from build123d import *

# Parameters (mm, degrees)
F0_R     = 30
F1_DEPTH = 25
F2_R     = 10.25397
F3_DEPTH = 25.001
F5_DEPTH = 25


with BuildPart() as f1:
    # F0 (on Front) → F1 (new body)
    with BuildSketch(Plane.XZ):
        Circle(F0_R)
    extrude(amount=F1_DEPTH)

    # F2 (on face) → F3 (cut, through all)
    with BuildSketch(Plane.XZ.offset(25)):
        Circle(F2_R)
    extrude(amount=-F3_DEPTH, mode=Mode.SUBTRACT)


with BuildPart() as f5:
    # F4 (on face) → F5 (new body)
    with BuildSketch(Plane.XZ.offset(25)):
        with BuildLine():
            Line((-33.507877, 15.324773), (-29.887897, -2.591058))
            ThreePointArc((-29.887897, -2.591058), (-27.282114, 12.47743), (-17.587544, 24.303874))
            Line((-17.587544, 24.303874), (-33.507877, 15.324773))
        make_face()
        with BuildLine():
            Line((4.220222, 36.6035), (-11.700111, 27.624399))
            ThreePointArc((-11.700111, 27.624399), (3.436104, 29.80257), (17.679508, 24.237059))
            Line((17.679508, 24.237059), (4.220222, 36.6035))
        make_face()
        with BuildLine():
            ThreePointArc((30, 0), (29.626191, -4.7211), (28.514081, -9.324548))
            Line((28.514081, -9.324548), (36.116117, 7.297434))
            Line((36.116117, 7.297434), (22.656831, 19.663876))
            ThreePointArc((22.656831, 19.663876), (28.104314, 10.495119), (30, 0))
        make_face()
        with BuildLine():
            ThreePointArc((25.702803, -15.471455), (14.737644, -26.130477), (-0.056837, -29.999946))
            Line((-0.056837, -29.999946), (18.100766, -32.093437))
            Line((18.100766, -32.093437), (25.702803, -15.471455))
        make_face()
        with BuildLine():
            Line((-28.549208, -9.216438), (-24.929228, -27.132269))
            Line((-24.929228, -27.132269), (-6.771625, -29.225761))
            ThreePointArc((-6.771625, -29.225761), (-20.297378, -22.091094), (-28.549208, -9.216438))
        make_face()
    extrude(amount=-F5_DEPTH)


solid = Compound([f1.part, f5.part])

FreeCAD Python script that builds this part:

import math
import FreeCAD as App
import Part
import Sketcher

doc = App.newDocument("Part")
body = doc.addObject("PartDesign::Body", "Body")

# Sketch on XZ plane
sketch1 = body.newObject("Sketcher::SketchObject", "Sketch")
sketch1.AttachmentSupport = (doc.getObject("XZ_Plane"), [""])
sketch1.MapMode = "FlatFace"
sketch1.addGeometry(Part.Circle(App.Vector(0, 0, 0), App.Vector(0, 0, 1), 30), False)
sketch1.addConstraint([
    Sketcher.Constraint("Coincident", 0, 3, -1, 1),
    Sketcher.Constraint("Diameter", 0, 60.0),
])
pad1 = body.newObject("PartDesign::Pad", "Pad")
pad1.Profile = sketch1
pad1.Length = 25

# Sketch on XZ plane
sketch2 = body.newObject("Sketcher::SketchObject", "Sketch001")
sketch2.AttachmentSupport = (doc.getObject("XZ_Plane"), [""])
sketch2.MapMode = "FlatFace"
sketch2.AttachmentOffset = App.Placement(App.Vector(0, 0, 25), App.Rotation())
sketch2.addGeometry(Part.Circle(App.Vector(0, 0, 0), App.Vector(0, 0, 1), 10.25397), False)
sketch2.addConstraint([
    Sketcher.Constraint("Coincident", 0, 3, -1, 1),
    Sketcher.Constraint("Diameter", 0, 20.50794),
])
pocket1 = body.newObject("PartDesign::Pocket", "Pocket")
pocket1.Profile = sketch2
pocket1.Type = "ThroughAll"
body2 = doc.addObject("PartDesign::Body", "Body001")
body2.AllowCompound = True

# Sketch on XZ plane
sketch3 = body2.newObject("Sketcher::SketchObject", "Sketch002")
sketch3.AttachmentSupport = (doc.getObject("XZ_Plane001"), [""])
sketch3.MapMode = "FlatFace"
sketch3.AttachmentOffset = App.Placement(App.Vector(0, 0, 25), App.Rotation())
sketch3.addGeometry([
    Part.LineSegment(App.Vector(-33.507877, 15.324773, 0), App.Vector(-29.887897, -2.591058, 0)),  # 0
    Part.ArcOfCircle(Part.Circle(App.Vector(-0.000002, 0.000002, 0), App.Vector(0, 0, 1), 29.999997), math.radians(125.891448), math.radians(184.954733)),  # 1
    Part.LineSegment(App.Vector(-17.587544, 24.303874, 0), App.Vector(-33.507877, 15.324773, 0)),  # 2
    Part.LineSegment(App.Vector(4.220222, 36.6035, 0), App.Vector(-11.700111, 27.624399, 0)),  # 3
    Part.ArcOfCircle(Part.Circle(App.Vector(0, -0.000005, 0), App.Vector(0, 0, 1), 30.000004), math.radians(53.891455), math.radians(112.954726)),  # 4
    Part.LineSegment(App.Vector(17.679508, 24.237059, 0), App.Vector(4.220222, 36.6035, 0)),  # 5
    Part.ArcOfCircle(Part.Circle(App.Vector(-0.000036, 0.000005, 0), App.Vector(0, 0, 1), 30.000036), math.radians(-18.108538), math.radians(-0.00001)),  # 6
    Part.LineSegment(App.Vector(28.514081, -9.324548, 0), App.Vector(36.116117, 7.297434, 0)),  # 7
    Part.LineSegment(App.Vector(36.116117, 7.297434, 0), App.Vector(22.656831, 19.663876, 0)),  # 8
    Part.ArcOfCircle(Part.Circle(App.Vector(-0.000004, -0.000001, 0), App.Vector(0, 0, 1), 30.000004), math.radians(0.000003), math.radians(40.954727)),  # 9
    Part.ArcOfCircle(Part.Circle(App.Vector(-0.000001, 0.000002, 0), App.Vector(0, 0, 1), 30.000002), math.radians(-90.108549), math.radians(-31.045272)),  # 10
    Part.LineSegment(App.Vector(-0.056837, -29.999946, 0), App.Vector(18.100766, -32.093437, 0)),  # 11
    Part.LineSegment(App.Vector(18.100766, -32.093437, 0), App.Vector(25.702803, -15.471455, 0)),  # 12
    Part.LineSegment(App.Vector(-28.549208, -9.216438, 0), App.Vector(-24.929228, -27.132269, 0)),  # 13
    Part.LineSegment(App.Vector(-24.929228, -27.132269, 0), App.Vector(-6.771625, -29.225761, 0)),  # 14
    Part.ArcOfCircle(Part.Circle(App.Vector(0.000002, 0.000002, 0), App.Vector(0, 0, 1), 30.000003), math.radians(-162.108548), math.radians(-103.045272)),  # 15
], False)
sketch3.addConstraint([
    Sketcher.Constraint("Coincident", 0, 2, 1, 2),
    Sketcher.Constraint("Coincident", 1, 1, 2, 1),
    Sketcher.Constraint("Coincident", 2, 2, 0, 1),
    Sketcher.Constraint("Coincident", 3, 2, 4, 2),
    Sketcher.Constraint("Coincident", 4, 1, 5, 1),
    Sketcher.Constraint("Coincident", 5, 2, 3, 1),
    Sketcher.Constraint("Coincident", 6, 1, 7, 1),
    Sketcher.Constraint("Coincident", 7, 2, 8, 1),
    Sketcher.Constraint("Coincident", 8, 2, 9, 2),
    Sketcher.Constraint("Tangent", 9, 1, 6, 2),
    Sketcher.Constraint("Coincident", 10, 1, 11, 1),
    Sketcher.Constraint("Coincident", 11, 2, 12, 1),
    Sketcher.Constraint("Coincident", 12, 2, 10, 2),
    Sketcher.Constraint("Coincident", 13, 2, 14, 1),
    Sketcher.Constraint("Coincident", 14, 2, 15, 2),
    Sketcher.Constraint("Coincident", 15, 1, 13, 1),
    Sketcher.Constraint("Coincident", 1, 3, -1, 1),
    Sketcher.Constraint("Coincident", 4, 3, -1, 1),
    Sketcher.Constraint("Coincident", 9, 3, -1, 1),
    Sketcher.Constraint("Coincident", 10, 3, -1, 1),
    Sketcher.Constraint("Coincident", 15, 3, -1, 1),
    Sketcher.Constraint("Equal", 4, 9),
    Sketcher.Constraint("Equal", 10, 15),
    Sketcher.Constraint("PointOnObject", 9, 1, -1),
    Sketcher.Constraint("Parallel", 2, 3),
    Sketcher.Constraint("Parallel", 5, 8),
    Sketcher.Constraint("Parallel", 7, 12),
    Sketcher.Constraint("Parallel", 0, 13),
    Sketcher.Constraint("Parallel", 11, 14),
    Sketcher.Constraint("Equal", 0, 2),
    Sketcher.Constraint("Equal", 2, 3),
    Sketcher.Constraint("Equal", 3, 5),
    Sketcher.Constraint("Equal", 5, 7),
    Sketcher.Constraint("Equal", 7, 8),
    Sketcher.Constraint("Equal", 8, 11),
    Sketcher.Constraint("Equal", 11, 12),
    Sketcher.Constraint("Equal", 12, 13),
    Sketcher.Constraint("Equal", 13, 14),
    Sketcher.Constraint("Radius", 10, 30.000002),
    Sketcher.Constraint("DistanceX", -1, 1, 9, 1, 30.0),
    Sketcher.Constraint("Radius", 1, 29.999997),
    Sketcher.Constraint("Radius", 6, 30.000036),
    Sketcher.Constraint("DistanceY", -1, 1, 3, 2, 27.624399),
    Sketcher.Constraint("DistanceY", -1, 1, 5, 2, 36.6035),
    Sketcher.Constraint("Distance", 0, 18.27789),
    Sketcher.Constraint("DistanceX", -1, 1, 6, 1, 28.514081),
    Sketcher.Constraint("DistanceY", 13, 2, -1, 1, 27.132269),
    Sketcher.Constraint("DistanceY", 14, 2, -1, 1, 29.225761),
])
pad2 = body2.newObject("PartDesign::Pad", "Pad001")
pad2.Profile = sketch3
pad2.Length = 25
pad2.Reversed = True

doc.recompute()
